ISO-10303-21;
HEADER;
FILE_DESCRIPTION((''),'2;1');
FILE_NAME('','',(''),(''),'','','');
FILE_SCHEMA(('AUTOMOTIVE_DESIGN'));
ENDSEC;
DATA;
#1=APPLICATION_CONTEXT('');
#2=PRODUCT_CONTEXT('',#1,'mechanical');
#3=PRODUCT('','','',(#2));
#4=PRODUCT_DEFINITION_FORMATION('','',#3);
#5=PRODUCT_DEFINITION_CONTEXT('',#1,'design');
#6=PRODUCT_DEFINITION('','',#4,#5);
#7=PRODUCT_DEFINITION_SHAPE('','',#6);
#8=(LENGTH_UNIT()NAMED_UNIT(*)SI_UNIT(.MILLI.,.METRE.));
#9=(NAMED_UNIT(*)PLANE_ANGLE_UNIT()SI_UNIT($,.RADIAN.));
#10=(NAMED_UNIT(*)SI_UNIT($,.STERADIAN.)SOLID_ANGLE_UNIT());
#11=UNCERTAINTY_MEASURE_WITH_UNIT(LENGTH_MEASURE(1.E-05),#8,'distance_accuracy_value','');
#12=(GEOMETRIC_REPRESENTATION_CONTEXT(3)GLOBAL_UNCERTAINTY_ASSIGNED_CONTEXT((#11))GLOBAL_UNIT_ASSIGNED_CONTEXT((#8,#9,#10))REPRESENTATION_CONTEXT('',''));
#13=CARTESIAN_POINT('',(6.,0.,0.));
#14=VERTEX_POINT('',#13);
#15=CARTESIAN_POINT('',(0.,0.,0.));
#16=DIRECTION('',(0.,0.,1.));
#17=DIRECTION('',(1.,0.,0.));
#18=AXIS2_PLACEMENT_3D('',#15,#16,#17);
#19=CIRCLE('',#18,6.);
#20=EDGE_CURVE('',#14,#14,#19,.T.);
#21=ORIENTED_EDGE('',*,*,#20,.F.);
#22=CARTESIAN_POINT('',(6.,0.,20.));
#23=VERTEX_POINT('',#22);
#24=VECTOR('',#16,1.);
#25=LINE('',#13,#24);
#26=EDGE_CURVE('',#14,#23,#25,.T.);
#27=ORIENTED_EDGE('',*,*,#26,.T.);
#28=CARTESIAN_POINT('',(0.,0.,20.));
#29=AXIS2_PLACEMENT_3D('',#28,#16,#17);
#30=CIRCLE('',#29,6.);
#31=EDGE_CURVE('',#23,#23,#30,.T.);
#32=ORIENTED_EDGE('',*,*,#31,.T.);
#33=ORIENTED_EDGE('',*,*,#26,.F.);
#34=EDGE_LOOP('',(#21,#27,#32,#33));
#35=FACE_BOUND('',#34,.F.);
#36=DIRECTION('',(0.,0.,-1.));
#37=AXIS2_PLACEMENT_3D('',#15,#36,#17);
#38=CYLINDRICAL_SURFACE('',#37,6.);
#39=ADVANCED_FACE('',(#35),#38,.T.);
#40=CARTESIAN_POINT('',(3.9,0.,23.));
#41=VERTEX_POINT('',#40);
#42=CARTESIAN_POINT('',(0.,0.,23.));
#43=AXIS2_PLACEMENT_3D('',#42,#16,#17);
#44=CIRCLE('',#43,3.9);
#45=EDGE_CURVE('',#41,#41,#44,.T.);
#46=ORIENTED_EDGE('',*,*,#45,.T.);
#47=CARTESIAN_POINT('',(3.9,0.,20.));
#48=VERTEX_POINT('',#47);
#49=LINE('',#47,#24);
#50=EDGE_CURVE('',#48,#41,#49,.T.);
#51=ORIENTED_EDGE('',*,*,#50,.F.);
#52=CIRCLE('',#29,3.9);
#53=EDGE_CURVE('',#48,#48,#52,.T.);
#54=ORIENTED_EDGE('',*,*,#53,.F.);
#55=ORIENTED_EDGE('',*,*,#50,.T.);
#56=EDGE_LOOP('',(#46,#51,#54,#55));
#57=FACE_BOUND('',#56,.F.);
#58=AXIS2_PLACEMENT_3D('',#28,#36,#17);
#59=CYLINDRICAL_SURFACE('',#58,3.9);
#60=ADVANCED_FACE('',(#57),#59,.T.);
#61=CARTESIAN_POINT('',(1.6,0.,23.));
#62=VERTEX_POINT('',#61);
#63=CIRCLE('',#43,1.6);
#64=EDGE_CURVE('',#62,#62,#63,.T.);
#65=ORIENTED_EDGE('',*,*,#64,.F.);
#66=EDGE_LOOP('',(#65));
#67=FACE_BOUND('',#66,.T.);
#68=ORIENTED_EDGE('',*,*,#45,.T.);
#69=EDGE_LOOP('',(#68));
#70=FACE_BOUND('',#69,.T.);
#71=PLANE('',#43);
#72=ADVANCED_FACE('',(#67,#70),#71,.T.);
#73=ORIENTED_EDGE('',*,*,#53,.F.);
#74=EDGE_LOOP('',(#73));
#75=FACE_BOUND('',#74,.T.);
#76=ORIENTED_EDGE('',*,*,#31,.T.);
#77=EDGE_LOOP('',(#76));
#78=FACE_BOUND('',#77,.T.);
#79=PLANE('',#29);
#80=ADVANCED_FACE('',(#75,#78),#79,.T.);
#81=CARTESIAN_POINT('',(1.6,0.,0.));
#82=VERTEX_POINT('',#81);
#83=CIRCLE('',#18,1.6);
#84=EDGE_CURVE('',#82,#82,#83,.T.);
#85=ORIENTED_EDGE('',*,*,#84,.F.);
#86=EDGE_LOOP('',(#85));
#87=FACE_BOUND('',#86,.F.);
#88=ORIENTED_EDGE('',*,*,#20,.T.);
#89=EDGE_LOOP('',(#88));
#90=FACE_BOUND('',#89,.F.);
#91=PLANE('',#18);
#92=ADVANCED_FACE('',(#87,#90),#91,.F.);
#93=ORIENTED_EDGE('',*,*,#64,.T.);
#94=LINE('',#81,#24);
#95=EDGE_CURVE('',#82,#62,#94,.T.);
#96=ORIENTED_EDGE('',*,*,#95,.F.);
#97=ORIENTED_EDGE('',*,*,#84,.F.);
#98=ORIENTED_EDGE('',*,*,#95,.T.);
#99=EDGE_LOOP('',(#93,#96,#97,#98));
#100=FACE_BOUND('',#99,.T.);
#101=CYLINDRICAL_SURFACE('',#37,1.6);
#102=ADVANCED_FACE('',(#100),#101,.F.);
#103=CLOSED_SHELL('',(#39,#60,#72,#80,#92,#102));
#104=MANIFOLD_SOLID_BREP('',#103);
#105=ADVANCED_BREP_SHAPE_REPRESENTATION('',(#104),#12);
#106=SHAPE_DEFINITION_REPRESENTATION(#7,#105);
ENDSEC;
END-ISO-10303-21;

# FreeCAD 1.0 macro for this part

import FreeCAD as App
import Part
import Sketcher

doc = App.newDocument("Part")
body = doc.addObject("PartDesign::Body", "Body")

sketch1 = doc.addObject("Sketcher::SketchObject", "Sketch")
body.addObject(sketch1)
sketch1.AttachmentSupport = (doc.XY_Plane, [""])
sketch1.MapMode = "FlatFace"
sketch1.addGeometry(Part.Circle(App.Vector(0, 0, 0), App.Vector(0, 0, 1), 6), False)
sketch1.addGeometry(Part.Circle(App.Vector(0, 0, 0), App.Vector(0, 0, 1), 1.6), False)
sketch1.addConstraint(Sketcher.Constraint("Coincident", 0, 3, -1, 1))
sketch1.addConstraint(Sketcher.Constraint("Coincident", 1, 3, -1, 1))
sketch1.addConstraint(Sketcher.Constraint("Diameter", 0, 12.0))
sketch1.addConstraint(Sketcher.Constraint("Diameter", 1, 3.2))
pad1 = doc.addObject("PartDesign::Pad", "Pad")
body.addObject(pad1)
pad1.Profile = sketch1
pad1.Length = 20

sketch2 = doc.addObject("Sketcher::SketchObject", "Sketch001")
body.addObject(sketch2)
sketch2.AttachmentSupport = (doc.XY_Plane, [""])
sketch2.MapMode = "FlatFace"
sketch2.AttachmentOffset = App.Placement(App.Vector(0, 0, 20), App.Rotation())
sketch2.addGeometry(Part.Circle(App.Vector(0, 0, 0), App.Vector(0, 0, 1), 3.9), False)
sketch2.addGeometry(Part.Circle(App.Vector(0, 0, 0), App.Vector(0, 0, 1), 1.6), False)
sketch2.addConstraint(Sketcher.Constraint("Coincident", 0, 3, -1, 1))
sketch2.addConstraint(Sketcher.Constraint("Coincident", 1, 3, -1, 1))
sketch2.addConstraint(Sketcher.Constraint("Diameter", 0, 7.8))
sketch2.addConstraint(Sketcher.Constraint("Diameter", 1, 3.2))
pad2 = doc.addObject("PartDesign::Pad", "Pad001")
body.addObject(pad2)
pad2.Profile = sketch2
pad2.Length = 3

doc.recompute()
